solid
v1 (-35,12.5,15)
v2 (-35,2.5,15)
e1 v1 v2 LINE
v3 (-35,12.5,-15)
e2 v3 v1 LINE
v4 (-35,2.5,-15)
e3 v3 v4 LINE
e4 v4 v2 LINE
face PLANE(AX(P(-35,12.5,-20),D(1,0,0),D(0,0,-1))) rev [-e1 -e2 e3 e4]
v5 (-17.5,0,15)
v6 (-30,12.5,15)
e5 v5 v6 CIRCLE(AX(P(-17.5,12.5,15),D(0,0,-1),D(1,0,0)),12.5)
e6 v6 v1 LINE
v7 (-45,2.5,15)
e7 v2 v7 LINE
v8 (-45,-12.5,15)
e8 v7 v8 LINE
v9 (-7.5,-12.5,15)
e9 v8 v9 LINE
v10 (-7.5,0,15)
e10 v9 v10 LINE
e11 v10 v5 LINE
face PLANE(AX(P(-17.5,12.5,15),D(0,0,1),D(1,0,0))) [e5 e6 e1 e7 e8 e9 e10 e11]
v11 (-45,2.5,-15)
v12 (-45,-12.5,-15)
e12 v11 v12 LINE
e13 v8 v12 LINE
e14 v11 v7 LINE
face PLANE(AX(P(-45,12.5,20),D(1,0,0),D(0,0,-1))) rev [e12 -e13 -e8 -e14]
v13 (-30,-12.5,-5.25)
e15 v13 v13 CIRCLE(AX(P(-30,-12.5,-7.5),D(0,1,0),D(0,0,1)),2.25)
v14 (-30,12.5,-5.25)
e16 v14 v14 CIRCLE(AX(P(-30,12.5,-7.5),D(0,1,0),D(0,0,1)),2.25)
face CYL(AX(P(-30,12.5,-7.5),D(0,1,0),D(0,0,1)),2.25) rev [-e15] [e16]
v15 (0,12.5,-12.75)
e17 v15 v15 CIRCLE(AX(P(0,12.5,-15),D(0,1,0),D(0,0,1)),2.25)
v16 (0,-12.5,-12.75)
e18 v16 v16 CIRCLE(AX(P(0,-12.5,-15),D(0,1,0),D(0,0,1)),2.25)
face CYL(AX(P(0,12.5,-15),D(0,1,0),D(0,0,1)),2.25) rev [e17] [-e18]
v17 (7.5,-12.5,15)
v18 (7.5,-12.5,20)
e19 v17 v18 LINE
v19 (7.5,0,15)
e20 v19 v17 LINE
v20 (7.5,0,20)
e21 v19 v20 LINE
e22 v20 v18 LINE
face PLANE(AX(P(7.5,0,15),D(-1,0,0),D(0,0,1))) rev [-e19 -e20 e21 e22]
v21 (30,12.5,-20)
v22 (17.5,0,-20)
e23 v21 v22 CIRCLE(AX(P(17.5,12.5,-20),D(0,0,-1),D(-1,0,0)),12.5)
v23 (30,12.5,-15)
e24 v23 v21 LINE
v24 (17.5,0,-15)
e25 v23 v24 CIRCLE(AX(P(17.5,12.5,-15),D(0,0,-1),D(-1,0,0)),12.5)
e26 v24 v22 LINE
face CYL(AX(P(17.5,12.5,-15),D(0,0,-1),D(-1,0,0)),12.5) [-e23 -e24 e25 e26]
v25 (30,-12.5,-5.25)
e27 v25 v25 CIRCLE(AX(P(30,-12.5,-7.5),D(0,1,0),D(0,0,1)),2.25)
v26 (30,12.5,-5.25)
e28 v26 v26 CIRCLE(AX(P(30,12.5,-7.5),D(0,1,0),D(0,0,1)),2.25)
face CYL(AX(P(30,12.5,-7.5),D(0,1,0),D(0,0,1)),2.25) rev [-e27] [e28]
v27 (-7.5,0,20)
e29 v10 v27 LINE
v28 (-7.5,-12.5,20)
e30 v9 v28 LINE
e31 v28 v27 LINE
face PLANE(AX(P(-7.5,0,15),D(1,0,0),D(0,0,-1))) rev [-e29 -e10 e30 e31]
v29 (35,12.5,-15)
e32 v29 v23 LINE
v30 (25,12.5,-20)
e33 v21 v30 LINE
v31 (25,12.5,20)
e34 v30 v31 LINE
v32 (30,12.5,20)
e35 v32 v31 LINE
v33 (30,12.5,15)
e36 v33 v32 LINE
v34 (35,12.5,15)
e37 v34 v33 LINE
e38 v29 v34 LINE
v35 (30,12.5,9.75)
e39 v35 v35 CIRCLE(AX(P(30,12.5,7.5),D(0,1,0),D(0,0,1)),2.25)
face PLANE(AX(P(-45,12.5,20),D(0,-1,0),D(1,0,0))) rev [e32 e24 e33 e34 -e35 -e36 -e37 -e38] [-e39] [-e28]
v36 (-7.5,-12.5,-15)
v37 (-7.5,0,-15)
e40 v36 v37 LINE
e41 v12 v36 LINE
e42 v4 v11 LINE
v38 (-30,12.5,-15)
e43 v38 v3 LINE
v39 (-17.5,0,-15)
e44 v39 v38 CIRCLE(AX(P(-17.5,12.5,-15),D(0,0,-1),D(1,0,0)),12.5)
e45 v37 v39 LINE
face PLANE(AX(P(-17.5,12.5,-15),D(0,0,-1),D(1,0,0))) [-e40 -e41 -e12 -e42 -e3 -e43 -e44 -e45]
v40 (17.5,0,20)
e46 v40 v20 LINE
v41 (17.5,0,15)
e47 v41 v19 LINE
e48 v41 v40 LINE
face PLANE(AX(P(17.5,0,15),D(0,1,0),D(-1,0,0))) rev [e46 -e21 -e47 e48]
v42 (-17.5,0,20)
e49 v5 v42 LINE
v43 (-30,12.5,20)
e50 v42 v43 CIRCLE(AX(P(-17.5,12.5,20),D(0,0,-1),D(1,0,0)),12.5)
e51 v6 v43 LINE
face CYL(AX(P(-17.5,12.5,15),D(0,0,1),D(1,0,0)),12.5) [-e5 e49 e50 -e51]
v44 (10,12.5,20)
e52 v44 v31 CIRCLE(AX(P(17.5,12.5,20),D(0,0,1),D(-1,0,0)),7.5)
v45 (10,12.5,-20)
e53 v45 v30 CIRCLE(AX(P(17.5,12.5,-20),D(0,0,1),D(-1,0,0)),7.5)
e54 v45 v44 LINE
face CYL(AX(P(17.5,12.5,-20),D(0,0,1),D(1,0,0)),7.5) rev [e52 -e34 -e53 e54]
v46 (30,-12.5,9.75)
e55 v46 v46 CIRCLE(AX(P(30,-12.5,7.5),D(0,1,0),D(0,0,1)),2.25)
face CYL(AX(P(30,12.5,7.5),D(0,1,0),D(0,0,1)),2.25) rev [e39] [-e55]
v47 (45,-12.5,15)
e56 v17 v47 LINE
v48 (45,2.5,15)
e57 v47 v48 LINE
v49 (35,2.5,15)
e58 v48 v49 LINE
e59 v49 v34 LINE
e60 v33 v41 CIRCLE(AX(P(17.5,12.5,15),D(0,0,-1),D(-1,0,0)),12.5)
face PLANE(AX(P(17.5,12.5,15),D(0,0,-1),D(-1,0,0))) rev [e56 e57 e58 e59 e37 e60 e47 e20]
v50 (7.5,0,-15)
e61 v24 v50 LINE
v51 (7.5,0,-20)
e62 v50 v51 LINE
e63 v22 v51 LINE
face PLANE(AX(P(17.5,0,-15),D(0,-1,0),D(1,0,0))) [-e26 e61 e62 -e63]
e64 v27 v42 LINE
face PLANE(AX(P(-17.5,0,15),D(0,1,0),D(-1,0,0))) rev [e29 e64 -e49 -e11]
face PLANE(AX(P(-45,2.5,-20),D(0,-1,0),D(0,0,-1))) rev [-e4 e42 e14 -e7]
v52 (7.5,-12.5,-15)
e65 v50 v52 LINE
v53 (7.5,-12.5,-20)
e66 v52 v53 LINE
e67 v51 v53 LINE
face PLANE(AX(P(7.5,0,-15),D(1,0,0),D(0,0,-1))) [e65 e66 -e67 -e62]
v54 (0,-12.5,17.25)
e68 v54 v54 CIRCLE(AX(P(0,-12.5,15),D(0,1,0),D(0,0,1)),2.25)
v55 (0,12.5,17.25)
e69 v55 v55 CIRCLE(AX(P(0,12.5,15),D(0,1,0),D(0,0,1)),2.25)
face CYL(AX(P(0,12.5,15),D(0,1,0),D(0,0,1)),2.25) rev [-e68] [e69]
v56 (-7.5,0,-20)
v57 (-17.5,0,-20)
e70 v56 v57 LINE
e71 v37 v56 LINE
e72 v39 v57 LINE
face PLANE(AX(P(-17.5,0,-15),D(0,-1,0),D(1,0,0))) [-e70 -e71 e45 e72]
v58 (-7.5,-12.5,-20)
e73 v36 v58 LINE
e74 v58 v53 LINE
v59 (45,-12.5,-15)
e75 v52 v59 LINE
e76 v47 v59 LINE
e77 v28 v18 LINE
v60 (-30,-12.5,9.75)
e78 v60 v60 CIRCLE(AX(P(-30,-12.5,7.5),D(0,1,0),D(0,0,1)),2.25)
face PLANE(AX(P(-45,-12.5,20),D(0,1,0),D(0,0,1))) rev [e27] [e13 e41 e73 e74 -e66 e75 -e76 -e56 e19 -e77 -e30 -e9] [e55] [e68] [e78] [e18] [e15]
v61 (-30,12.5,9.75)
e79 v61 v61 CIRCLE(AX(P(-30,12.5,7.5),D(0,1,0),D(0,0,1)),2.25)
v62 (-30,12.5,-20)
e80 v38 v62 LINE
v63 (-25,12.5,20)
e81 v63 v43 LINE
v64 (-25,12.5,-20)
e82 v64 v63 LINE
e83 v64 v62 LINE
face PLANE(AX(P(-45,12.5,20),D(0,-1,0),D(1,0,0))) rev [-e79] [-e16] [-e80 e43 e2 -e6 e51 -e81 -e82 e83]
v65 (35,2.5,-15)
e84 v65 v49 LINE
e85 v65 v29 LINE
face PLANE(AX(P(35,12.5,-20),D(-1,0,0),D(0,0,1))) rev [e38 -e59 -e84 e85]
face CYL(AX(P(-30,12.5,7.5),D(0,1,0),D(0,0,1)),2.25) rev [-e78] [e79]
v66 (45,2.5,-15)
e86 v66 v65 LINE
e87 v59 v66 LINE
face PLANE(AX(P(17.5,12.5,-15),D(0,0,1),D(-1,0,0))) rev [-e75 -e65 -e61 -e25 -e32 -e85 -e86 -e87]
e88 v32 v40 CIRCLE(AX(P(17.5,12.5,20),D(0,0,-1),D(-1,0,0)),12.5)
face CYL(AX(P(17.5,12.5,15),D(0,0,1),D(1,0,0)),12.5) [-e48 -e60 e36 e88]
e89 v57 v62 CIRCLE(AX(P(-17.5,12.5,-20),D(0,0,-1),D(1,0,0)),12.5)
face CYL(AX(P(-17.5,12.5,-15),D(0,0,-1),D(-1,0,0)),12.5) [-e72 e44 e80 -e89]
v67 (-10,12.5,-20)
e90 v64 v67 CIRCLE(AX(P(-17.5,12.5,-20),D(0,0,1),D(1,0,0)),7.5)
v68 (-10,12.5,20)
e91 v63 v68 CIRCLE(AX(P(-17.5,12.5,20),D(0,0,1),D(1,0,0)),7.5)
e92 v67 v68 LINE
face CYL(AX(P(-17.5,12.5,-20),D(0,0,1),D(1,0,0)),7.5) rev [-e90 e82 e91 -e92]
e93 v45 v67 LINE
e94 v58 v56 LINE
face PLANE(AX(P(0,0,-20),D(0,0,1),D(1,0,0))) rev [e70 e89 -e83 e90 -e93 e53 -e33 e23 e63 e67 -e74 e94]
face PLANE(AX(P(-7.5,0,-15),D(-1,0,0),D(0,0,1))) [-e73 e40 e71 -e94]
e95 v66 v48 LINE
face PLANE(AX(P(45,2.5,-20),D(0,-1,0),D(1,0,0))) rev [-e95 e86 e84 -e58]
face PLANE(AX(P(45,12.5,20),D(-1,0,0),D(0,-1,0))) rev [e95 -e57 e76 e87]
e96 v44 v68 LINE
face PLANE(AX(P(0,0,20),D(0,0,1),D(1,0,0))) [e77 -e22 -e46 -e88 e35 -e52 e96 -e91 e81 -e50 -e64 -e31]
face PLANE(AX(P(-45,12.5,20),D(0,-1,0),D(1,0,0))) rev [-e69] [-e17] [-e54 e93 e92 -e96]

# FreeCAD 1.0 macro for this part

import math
import FreeCAD as App
import Part
import Sketcher
from FreeCAD import Vector

doc = App.newDocument("Part")
params = doc.addObject("Spreadsheet::Sheet", "Params")
for row, (alias, value) in enumerate([
    ("sketch1_width", "90 mm"),
    ("sketch1_height", "25 mm"),
    ("pad1_length", "40 mm"),
    ("sketch2_width", "10 mm"),
    ("sketch3_radius", "12.5 mm"),
    ("sketch3_width", "10 mm"),
    ("sketch3_width2", "5 mm"),
    ("sketch3_height", "15 mm"),
    ("pocket2_length", "5 mm"),
    ("sketch4_radius", "7.5 mm"),
    ("sketch5_diameter", "4.5 mm"),
    ("hole_diameter", "4.5 mm"),
    ("linearpattern_pitch", "15 mm"),
    ("linearpattern2_pitch", "60 mm"),
    ("sketch6_diameter", "4.5 mm"),
    ("hole2_diameter", "4.5 mm"),
    ("sketch7_diameter", "4.5 mm"),
    ("hole3_diameter", "4.5 mm"),
    ("sketch8_diameter", "4.5 mm"),
    ("hole4_diameter", "4.5 mm"),
    ("sketch9_diameter", "4.5 mm"),
    ("hole5_diameter", "4.5 mm"),
], start=1):
    params.set(f"A{row}", alias)
    params.set(f"B{row}", "=" + value)
    params.setAlias(f"B{row}", alias)

body = doc.addObject("PartDesign::Body", "Body")

# Sketch on XY plane
sketch1 = body.newObject("Sketcher::SketchObject", "Sketch")
sketch1.AttachmentSupport = (doc.getObject("XY_Plane"), [""])
sketch1.MapMode = "FlatFace"
sketch1.addGeometry(Part.LineSegment(Vector(-45, 12, 0), Vector(-45, -12, 0)), False)
sketch1.addGeometry(Part.LineSegment(Vector(-45, -12, 0), Vector(45, -12, 0)), False)
sketch1.addGeometry(Part.LineSegment(Vector(45, -12, 0), Vector(45, 12, 0)), False)
sketch1.addGeometry(Part.LineSegment(Vector(45, 12, 0), Vector(-45, 12, 0)), False)
sketch1.addConstraint(Sketcher.Constraint("Coincident", 0, 2, 1, 1))
sketch1.addConstraint(Sketcher.Constraint("Coincident", 1, 2, 2, 1))
sketch1.addConstraint(Sketcher.Constraint("Coincident", 2, 2, 3, 1))
sketch1.addConstraint(Sketcher.Constraint("Coincident", 3, 2, 0, 1))
sketch1.addConstraint(Sketcher.Constraint("Vertical", 0))
sketch1.addConstraint(Sketcher.Constraint("Horizontal", 1))
sketch1.addConstraint(Sketcher.Constraint("Vertical", 2))
sketch1.addConstraint(Sketcher.Constraint("Horizontal", 3))
sketch1.addConstraint(Sketcher.Constraint("Symmetric", 0, 2, 2, 2, -1, 1))
sketch1.addConstraint(Sketcher.Constraint("DistanceX", 1, 1, 1, 2, 90.0))
sketch1.addConstraint(Sketcher.Constraint("DistanceY", 0, 2, 0, 1, 25.0))
sketch1.setExpression("Constraints[9]", "Params.sketch1_width")
sketch1.setExpression("Constraints[10]", "Params.sketch1_height")
pad1 = body.newObject("PartDesign::Pad", "Pad")
pad1.Profile = sketch1
pad1.setExpression("Length", "Params.pad1_length")
pad1.Midplane = True

# Sketch on XY plane
sketch2 = body.newObject("Sketcher::SketchObject", "Sketch001")
sketch2.AttachmentSupport = (doc.getObject("XY_Plane"), [""])
sketch2.MapMode = "FlatFace"
sketch2.AttachmentOffset = App.Placement(Vector(0, 0, 20), App.Rotation())
sketch2.addGeometry(Part.LineSegment(Vector(-45, 12, 0), Vector(-45, 2, 0)), False)
sketch2.addGeometry(Part.LineSegment(Vector(-45, 2, 0), Vector(-35, 2, 0)), False)
sketch2.addGeometry(Part.LineSegment(Vector(-35, 2, 0), Vector(-35, 12, 0)), False)
sketch2.addGeometry(Part.LineSegment(Vector(-35, 12, 0), Vector(-45, 12, 0)), False)
sketch2.addGeometry(Part.LineSegment(Vector(35, 12, 0), Vector(35, 2, 0)), False)
sketch2.addGeometry(Part.LineSegment(Vector(35, 2, 0), Vector(45, 2, 0)), False)
sketch2.addGeometry(Part.LineSegment(Vector(45, 2, 0), Vector(45, 12, 0)), False)
sketch2.addGeometry(Part.LineSegment(Vector(45, 12, 0), Vector(35, 12, 0)), False)
sketch2.addConstraint(Sketcher.Constraint("Coincident", 0, 2, 1, 1))
sketch2.addConstraint(Sketcher.Constraint("Coincident", 1, 2, 2, 1))
sketch2.addConstraint(Sketcher.Constraint("Coincident", 2, 2, 3, 1))
sketch2.addConstraint(Sketcher.Constraint("Coincident", 3, 2, 0, 1))
sketch2.addConstraint(Sketcher.Constraint("Coincident", 4, 2, 5, 1))
sketch2.addConstraint(Sketcher.Constraint("Coincident", 5, 2, 6, 1))
sketch2.addConstraint(Sketcher.Constraint("Coincident", 6, 2, 7, 1))
sketch2.addConstraint(Sketcher.Constraint("Coincident", 7, 2, 4, 1))
sketch2.addConstraint(Sketcher.Constraint("Vertical", 0))
sketch2.addConstraint(Sketcher.Constraint("Horizontal", 1))
sketch2.addConstraint(Sketcher.Constraint("Vertical", 2))
sketch2.addConstraint(Sketcher.Constraint("Horizontal", 3))
sketch2.addConstraint(Sketcher.Constraint("Vertical", 4))
sketch2.addConstraint(Sketcher.Constraint("Horizontal", 5))
sketch2.addConstraint(Sketcher.Constraint("Vertical", 6))
sketch2.addConstraint(Sketcher.Constraint("Horizontal", 7))
sketch2.addConstraint(Sketcher.Constraint("Symmetric", 1, 2, 4, 2, -2))
sketch2.addConstraint(Sketcher.Constraint("Symmetric", 3, 2, 6, 2, -2))
sketch2.addConstraint(Sketcher.Constraint("Equal", 7, 0))
sketch2.addConstraint(Sketcher.Constraint("DistanceX", 1, 1, 1, 2, 10.0))
sketch2.addConstraint(Sketcher.Constraint("DistanceX", 0, 2, -1, 1, 45.0))
sketch2.addConstraint(Sketcher.Constraint("DistanceY", -1, 1, 0, 2, 2.5))
sketch2.setExpression("Constraints[19]", "Params.sketch2_width")
pocket1 = body.newObject("PartDesign::Pocket", "Pocket")
pocket1.Profile = sketch2
pocket1.Type = "ThroughAll"
pocket1.Midplane = True

# Sketch on XY plane
sketch3 = body.newObject("Sketcher::SketchObject", "Sketch002")
sketch3.AttachmentSupport = (doc.getObject("XY_Plane"), [""])
sketch3.MapMode = "FlatFace"
sketch3.AttachmentOffset = App.Placement(Vector(0, 0, 20), App.Rotation())
sketch3.addGeometry(Part.LineSegment(Vector(45, -12, 0), Vector(45, 2, 0)), False)
sketch3.addGeometry(Part.LineSegment(Vector(45, 2, 0), Vector(35, 2, 0)), False)
sketch3.addGeometry(Part.LineSegment(Vector(35, 2, 0), Vector(35, 12, 0)), False)
sketch3.addGeometry(Part.LineSegment(Vector(35, 12, 0), Vector(30, 12, 0)), False)
sketch3.addGeometry(Part.ArcOfCircle(Part.Circle(Vector(18, 12, 0), Vector(0, 0, 1), 12), math.radians(-90), math.radians(0)), False)
sketch3.addGeometry(Part.LineSegment(Vector(18, 0, 0), Vector(8, 0, 0)), False)
sketch3.addGeometry(Part.LineSegment(Vector(8, 0, 0), Vector(8, -12, 0)), False)
sketch3.addGeometry(Part.LineSegment(Vector(8, -12, 0), Vector(45, -12, 0)), False)
sketch3.addGeometry(Part.LineSegment(Vector(-45, -12, 0), Vector(-8, -12, 0)), False)
sketch3.addGeometry(Part.LineSegment(Vector(-8, -12, 0), Vector(-8, 0, 0)), False)
sketch3.addGeometry(Part.LineSegment(Vector(-8, 0, 0), Vector(-18, 0, 0)), False)
sketch3.addGeometry(Part.ArcOfCircle(Part.Circle(Vector(-18, 12, 0), Vector(0, 0, 1), 12), math.radians(180), math.radians(270)), False)
sketch3.addGeometry(Part.LineSegment(Vector(-30, 12, 0), Vector(-35, 12, 0)), False)
sketch3.addGeometry(Part.LineSegment(Vector(-35, 12, 0), Vector(-35, 2, 0)), False)
sketch3.addGeometry(Part.LineSegment(Vector(-35, 2, 0), Vector(-45, 2, 0)), False)
sketch3.addGeometry(Part.LineSegment(Vector(-45, 2, 0), Vector(-45, -12, 0)), False)
sketch3.addConstraint(Sketcher.Constraint("Coincident", 0, 2, 1, 1))
sketch3.addConstraint(Sketcher.Constraint("Coincident", 1, 2, 2, 1))
sketch3.addConstraint(Sketcher.Constraint("Coincident", 2, 2, 3, 1))
sketch3.addConstraint(Sketcher.Constraint("Coincident", 3, 2, 4, 2))
sketch3.addConstraint(Sketcher.Constraint("Tangent", 4, 1, 5, 1))
sketch3.addConstraint(Sketcher.Constraint("Coincident", 5, 2, 6, 1))
sketch3.addConstraint(Sketcher.Constraint("Coincident", 6, 2, 7, 1))
sketch3.addConstraint(Sketcher.Constraint("Coincident", 7, 2, 0, 1))
sketch3.addConstraint(Sketcher.Constraint("Coincident", 8, 2, 9, 1))
sketch3.addConstraint(Sketcher.Constraint("Coincident", 9, 2, 10, 1))
sketch3.addConstraint(Sketcher.Constraint("Tangent", 10, 2, 11, 2))
sketch3.addConstraint(Sketcher.Constraint("Coincident", 11, 1, 12, 1))
sketch3.addConstraint(Sketcher.Constraint("Coincident", 12, 2, 13, 1))
sketch3.addConstraint(Sketcher.Constraint("Coincident", 13, 2, 14, 1))
sketch3.addConstraint(Sketcher.Constraint("Coincident", 14, 2, 15, 1))
sketch3.addConstraint(Sketcher.Constraint("Coincident", 15, 2, 8, 1))
sketch3.addConstraint(Sketcher.Constraint("Vertical", 0))
sketch3.addConstraint(Sketcher.Constraint("Horizontal", 1))
sketch3.addConstraint(Sketcher.Constraint("Vertical", 2))
sketch3.addConstraint(Sketcher.Constraint("Horizontal", 3))
sketch3.addConstraint(Sketcher.Constraint("Horizontal", 5))
sketch3.addConstraint(Sketcher.Constraint("Vertical", 6))
sketch3.addConstraint(Sketcher.Constraint("Horizontal", 7))
sketch3.addConstraint(Sketcher.Constraint("Horizontal", 8))
sketch3.addConstraint(Sketcher.Constraint("Vertical", 9))
sketch3.addConstraint(Sketcher.Constraint("Horizontal", 10))
sketch3.addConstraint(Sketcher.Constraint("Horizontal", 12))
sketch3.addConstraint(Sketcher.Constraint("Vertical", 13))
sketch3.addConstraint(Sketcher.Constraint("Horizontal", 14))
sketch3.addConstraint(Sketcher.Constraint("Vertical", 15))
sketch3.addConstraint(Sketcher.Constraint("Equal", 4, 11))
sketch3.addConstraint(Sketcher.Constraint("Symmetric", 5, 2, 9, 2, -1, 1))
sketch3.addConstraint(Sketcher.Constraint("Symmetric", 4, 3, 11, 3, -2))
sketch3.addConstraint(Sketcher.Constraint("Symmetric", 2, 2, 12, 2, -2))
sketch3.addConstraint(Sketcher.Constraint("Symmetric", 0, 2, 14, 2, -2))
sketch3.addConstraint(Sketcher.Constraint("Horizontal", 11, 3, 2, 2))
sketch3.addConstraint(Sketcher.Constraint("Horizontal", 7, 2, 8, 2))
sketch3.addConstraint(Sketcher.Constraint("Equal", 1, 5))
sketch3.addConstraint(Sketcher.Constraint("Equal", 14, 2))
sketch3.addConstraint(Sketcher.Constraint("Radius", 4, 12.5))
sketch3.addConstraint(Sketcher.Constraint("DistanceX", 1, 2, 1, 1, 10.0))
sketch3.addConstraint(Sketcher.Constraint("DistanceX", 3, 2, 3, 1, 5.0))
sketch3.addConstraint(Sketcher.Constraint("DistanceY", 0, 1, 0, 2, 15.0))
sketch3.addConstraint(Sketcher.Constraint("DistanceX", -1, 1, 0, 2, 45.0))
sketch3.setExpression("Constraints[39]", "Params.sketch3_radius")
sketch3.setExpression("Constraints[40]", "Params.sketch3_width")
sketch3.setExpression("Constraints[41]", "Params.sketch3_width2")
sketch3.setExpression("Constraints[42]", "Params.sketch3_height")
pocket2 = body.newObject("PartDesign::Pocket", "Pocket001")
pocket2.Profile = sketch3
pocket2.setExpression("Length", "Params.pocket2_length")
doc.recompute()

mirrored = body.newObject("PartDesign::Mirrored", "Mirrored")
mirrored.Originals = [pocket2]
mirrored.MirrorPlane = (doc.getObject("XY_Plane"), [""])
body.Tip = mirrored

# Sketch on XY plane
sketch4 = body.newObject("Sketcher::SketchObject", "Sketch003")
sketch4.AttachmentSupport = (doc.getObject("XY_Plane"), [""])
sketch4.MapMode = "FlatFace"
sketch4.AttachmentOffset = App.Placement(Vector(0, 0, 20), App.Rotation())
sketch4.addGeometry(Part.LineSegment(Vector(25, 12, 0), Vector(10, 12, 0)), False)
sketch4.addGeometry(Part.ArcOfCircle(Part.Circle(Vector(18, 12, 0), Vector(0, 0, 1), 8), math.radians(180), math.radians(360)), False)
sketch4.addGeometry(Part.LineSegment(Vector(-10, 12, 0), Vector(-25, 12, 0)), False)
sketch4.addGeometry(Part.ArcOfCircle(Part.Circle(Vector(-18, 12, 0), Vector(0, 0, 1), 8), math.radians(180), math.radians(360)), False)
sketch4.addConstraint(Sketcher.Constraint("Coincident", 0, 1, 1, 2))
sketch4.addConstraint(Sketcher.Constraint("Coincident", 1, 1, 0, 2))
sketch4.addConstraint(Sketcher.Constraint("Coincident", 2, 1, 3, 2))
sketch4.addConstraint(Sketcher.Constraint("Coincident", 3, 1, 2, 2))
sketch4.addConstraint(Sketcher.Constraint("Horizontal", 0))
sketch4.addConstraint(Sketcher.Constraint("Horizontal", 2))
sketch4.addConstraint(Sketcher.Constraint("Equal", 1, 3))
sketch4.addConstraint(Sketcher.Constraint("Symmetric", 1, 3, 3, 3, -2))
sketch4.addConstraint(Sketcher.Constraint("Horizontal", 3, 3, 0, 1))
sketch4.addConstraint(Sketcher.Constraint("Horizontal", 1, 1, 2, 1))
sketch4.addConstraint(Sketcher.Constraint("Radius", 1, 7.5))
sketch4.addConstraint(Sketcher.Constraint("DistanceX", -1, 1, 0, 1, 25.0))
sketch4.addConstraint(Sketcher.Constraint("DistanceY", -1, 1, 1, 3, 12.5))
sketch4.setExpression("Constraints[10]", "Params.sketch4_radius")
pocket3 = body.newObject("PartDesign::Pocket", "Pocket002")
pocket3.Profile = sketch4
pocket3.Type = "ThroughAll"

# Sketch on XZ plane
sketch5 = body.newObject("Sketcher::SketchObject", "Sketch004")
sketch5.AttachmentSupport = (doc.getObject("XZ_Plane"), [""])
sketch5.MapMode = "FlatFace"
sketch5.AttachmentOffset = App.Placement(Vector(0, 0, -12.5), App.Rotation())
sketch5.addGeometry(Part.Circle(Vector(30, 7.5, 0), Vector(0, 0, 1), 2.2), False)
sketch5.addConstraint(Sketcher.Constraint("Diameter", 0, 4.5))
sketch5.addConstraint(Sketcher.Constraint("DistanceX", -1, 1, 0, 3, 30.0))
sketch5.addConstraint(Sketcher.Constraint("DistanceY", -1, 1, 0, 3, 7.5))
sketch5.setExpression("Constraints[0]", "Params.sketch5_diameter")
doc.recompute()
hole = body.newObject("PartDesign::Hole", "Hole")
hole.Profile = sketch5
hole.ThreadType = "None"
hole.setExpression("Diameter", "Params.hole_diameter")
hole.DepthType = "ThroughAll"
hole.Reversed = True
doc.recompute()

linearpattern = body.newObject("PartDesign::LinearPattern", "LinearPattern")
linearpattern.Originals = [hole]
linearpattern.Direction = (doc.getObject("Z_Axis"), [""])
linearpattern.Mode = "offset"
linearpattern.setExpression("Offset", "Params.linearpattern_pitch")
linearpattern.Occurrences = 2
linearpattern.Reversed = True
body.Tip = linearpattern
doc.recompute()

linearpattern2 = body.newObject("PartDesign::LinearPattern", "LinearPattern001")
linearpattern2.Originals = [hole]
linearpattern2.Direction = (doc.getObject("X_Axis"), [""])
linearpattern2.Mode = "offset"
linearpattern2.setExpression("Offset", "Params.linearpattern2_pitch")
linearpattern2.Occurrences = 2
linearpattern2.Reversed = True
body.Tip = linearpattern2

# Sketch on XZ plane
sketch6 = body.newObject("Sketcher::SketchObject", "Sketch005")
sketch6.AttachmentSupport = (doc.getObject("XZ_Plane"), [""])
sketch6.MapMode = "FlatFace"
sketch6.AttachmentOffset = App.Placement(Vector(0, 0, -12.5), App.Rotation())
sketch6.addGeometry(Part.Circle(Vector(-30, -7.5, 0), Vector(0, 0, 1), 2.2), False)
sketch6.addConstraint(Sketcher.Constraint("Diameter", 0, 4.5))
sketch6.addConstraint(Sketcher.Constraint("DistanceX", 0, 3, -1, 1, 30.0))
sketch6.addConstraint(Sketcher.Constraint("DistanceY", 0, 3, -1, 1, 7.5))
sketch6.setExpression("Constraints[0]", "Params.sketch6_diameter")
doc.recompute()
hole2 = body.newObject("PartDesign::Hole", "Hole001")
hole2.Profile = sketch6
hole2.ThreadType = "None"
hole2.setExpression("Diameter", "Params.hole2_diameter")
hole2.DepthType = "ThroughAll"
hole2.Reversed = True

# Sketch on XZ plane
sketch7 = body.newObject("Sketcher::SketchObject", "Sketch006")
sketch7.AttachmentSupport = (doc.getObject("XZ_Plane"), [""])
sketch7.MapMode = "FlatFace"
sketch7.AttachmentOffset = App.Placement(Vector(0, 0, -12.5), App.Rotation())
sketch7.addGeometry(Part.Circle(Vector(30, 7.5, 0), Vector(0, 0, 1), 2.2), False)
sketch7.addConstraint(Sketcher.Constraint("Diameter", 0, 4.5))
sketch7.addConstraint(Sketcher.Constraint("DistanceX", -1, 1, 0, 3, 30.0))
sketch7.addConstraint(Sketcher.Constraint("DistanceY", -1, 1, 0, 3, 7.5))
sketch7.setExpression("Constraints[0]", "Params.sketch7_diameter")
doc.recompute()
hole3 = body.newObject("PartDesign::Hole", "Hole002")
hole3.Profile = sketch7
hole3.ThreadType = "None"
hole3.setExpression("Diameter", "Params.hole3_diameter")
hole3.DepthType = "ThroughAll"
hole3.Reversed = True

# Sketch on XZ plane
sketch8 = body.newObject("Sketcher::SketchObject", "Sketch007")
sketch8.AttachmentSupport = (doc.getObject("XZ_Plane"), [""])
sketch8.MapMode = "FlatFace"
sketch8.AttachmentOffset = App.Placement(Vector(0, 0, -12.5), App.Rotation())
sketch8.addGeometry(Part.Circle(Vector(-30, 7.5, 0), Vector(0, 0, 1), 2.2), False)
sketch8.addConstraint(Sketcher.Constraint("Diameter", 0, 4.5))
sketch8.addConstraint(Sketcher.Constraint("DistanceX", 0, 3, -1, 1, 30.0))
sketch8.addConstraint(Sketcher.Constraint("DistanceY", -1, 1, 0, 3, 7.5))
sketch8.setExpression("Constraints[0]", "Params.sketch8_diameter")
doc.recompute()
hole4 = body.newObject("PartDesign::Hole", "Hole003")
hole4.Profile = sketch8
hole4.ThreadType = "None"
hole4.setExpression("Diameter", "Params.hole4_diameter")
hole4.DepthType = "ThroughAll"
hole4.Reversed = True

# Sketch on XZ plane
sketch9 = body.newObject("Sketcher::SketchObject", "Sketch008")
sketch9.AttachmentSupport = (doc.getObject("XZ_Plane"), [""])
sketch9.MapMode = "FlatFace"
sketch9.AttachmentOffset = App.Placement(Vector(0, 0, -12.5), App.Rotation())
sketch9.addGeometry(Part.Circle(Vector(0, 15, 0), Vector(0, 0, 1), 2.2), False)
sketch9.addGeometry(Part.Circle(Vector(0, -15, 0), Vector(0, 0, 1), 2.2), False)
sketch9.addConstraint(Sketcher.Constraint("Equal", 0, 1))
sketch9.addConstraint(Sketcher.Constraint("Symmetric", 0, 3, 1, 3, -1, 1))
sketch9.addConstraint(Sketcher.Constraint("PointOnObject", 0, 3, -2))
sketch9.addConstraint(Sketcher.Constraint("Diameter", 0, 4.5))
sketch9.addConstraint(Sketcher.Constraint("DistanceY", -1, 1, 0, 3, 15.0))
sketch9.setExpression("Constraints[3]", "Params.sketch9_diameter")
doc.recompute()
hole5 = body.newObject("PartDesign::Hole", "Hole004")
hole5.Profile = sketch9
hole5.ThreadType = "None"
hole5.setExpression("Diameter", "Params.hole5_diameter")
hole5.DepthType = "ThroughAll"
hole5.Reversed = True

doc.recompute()
